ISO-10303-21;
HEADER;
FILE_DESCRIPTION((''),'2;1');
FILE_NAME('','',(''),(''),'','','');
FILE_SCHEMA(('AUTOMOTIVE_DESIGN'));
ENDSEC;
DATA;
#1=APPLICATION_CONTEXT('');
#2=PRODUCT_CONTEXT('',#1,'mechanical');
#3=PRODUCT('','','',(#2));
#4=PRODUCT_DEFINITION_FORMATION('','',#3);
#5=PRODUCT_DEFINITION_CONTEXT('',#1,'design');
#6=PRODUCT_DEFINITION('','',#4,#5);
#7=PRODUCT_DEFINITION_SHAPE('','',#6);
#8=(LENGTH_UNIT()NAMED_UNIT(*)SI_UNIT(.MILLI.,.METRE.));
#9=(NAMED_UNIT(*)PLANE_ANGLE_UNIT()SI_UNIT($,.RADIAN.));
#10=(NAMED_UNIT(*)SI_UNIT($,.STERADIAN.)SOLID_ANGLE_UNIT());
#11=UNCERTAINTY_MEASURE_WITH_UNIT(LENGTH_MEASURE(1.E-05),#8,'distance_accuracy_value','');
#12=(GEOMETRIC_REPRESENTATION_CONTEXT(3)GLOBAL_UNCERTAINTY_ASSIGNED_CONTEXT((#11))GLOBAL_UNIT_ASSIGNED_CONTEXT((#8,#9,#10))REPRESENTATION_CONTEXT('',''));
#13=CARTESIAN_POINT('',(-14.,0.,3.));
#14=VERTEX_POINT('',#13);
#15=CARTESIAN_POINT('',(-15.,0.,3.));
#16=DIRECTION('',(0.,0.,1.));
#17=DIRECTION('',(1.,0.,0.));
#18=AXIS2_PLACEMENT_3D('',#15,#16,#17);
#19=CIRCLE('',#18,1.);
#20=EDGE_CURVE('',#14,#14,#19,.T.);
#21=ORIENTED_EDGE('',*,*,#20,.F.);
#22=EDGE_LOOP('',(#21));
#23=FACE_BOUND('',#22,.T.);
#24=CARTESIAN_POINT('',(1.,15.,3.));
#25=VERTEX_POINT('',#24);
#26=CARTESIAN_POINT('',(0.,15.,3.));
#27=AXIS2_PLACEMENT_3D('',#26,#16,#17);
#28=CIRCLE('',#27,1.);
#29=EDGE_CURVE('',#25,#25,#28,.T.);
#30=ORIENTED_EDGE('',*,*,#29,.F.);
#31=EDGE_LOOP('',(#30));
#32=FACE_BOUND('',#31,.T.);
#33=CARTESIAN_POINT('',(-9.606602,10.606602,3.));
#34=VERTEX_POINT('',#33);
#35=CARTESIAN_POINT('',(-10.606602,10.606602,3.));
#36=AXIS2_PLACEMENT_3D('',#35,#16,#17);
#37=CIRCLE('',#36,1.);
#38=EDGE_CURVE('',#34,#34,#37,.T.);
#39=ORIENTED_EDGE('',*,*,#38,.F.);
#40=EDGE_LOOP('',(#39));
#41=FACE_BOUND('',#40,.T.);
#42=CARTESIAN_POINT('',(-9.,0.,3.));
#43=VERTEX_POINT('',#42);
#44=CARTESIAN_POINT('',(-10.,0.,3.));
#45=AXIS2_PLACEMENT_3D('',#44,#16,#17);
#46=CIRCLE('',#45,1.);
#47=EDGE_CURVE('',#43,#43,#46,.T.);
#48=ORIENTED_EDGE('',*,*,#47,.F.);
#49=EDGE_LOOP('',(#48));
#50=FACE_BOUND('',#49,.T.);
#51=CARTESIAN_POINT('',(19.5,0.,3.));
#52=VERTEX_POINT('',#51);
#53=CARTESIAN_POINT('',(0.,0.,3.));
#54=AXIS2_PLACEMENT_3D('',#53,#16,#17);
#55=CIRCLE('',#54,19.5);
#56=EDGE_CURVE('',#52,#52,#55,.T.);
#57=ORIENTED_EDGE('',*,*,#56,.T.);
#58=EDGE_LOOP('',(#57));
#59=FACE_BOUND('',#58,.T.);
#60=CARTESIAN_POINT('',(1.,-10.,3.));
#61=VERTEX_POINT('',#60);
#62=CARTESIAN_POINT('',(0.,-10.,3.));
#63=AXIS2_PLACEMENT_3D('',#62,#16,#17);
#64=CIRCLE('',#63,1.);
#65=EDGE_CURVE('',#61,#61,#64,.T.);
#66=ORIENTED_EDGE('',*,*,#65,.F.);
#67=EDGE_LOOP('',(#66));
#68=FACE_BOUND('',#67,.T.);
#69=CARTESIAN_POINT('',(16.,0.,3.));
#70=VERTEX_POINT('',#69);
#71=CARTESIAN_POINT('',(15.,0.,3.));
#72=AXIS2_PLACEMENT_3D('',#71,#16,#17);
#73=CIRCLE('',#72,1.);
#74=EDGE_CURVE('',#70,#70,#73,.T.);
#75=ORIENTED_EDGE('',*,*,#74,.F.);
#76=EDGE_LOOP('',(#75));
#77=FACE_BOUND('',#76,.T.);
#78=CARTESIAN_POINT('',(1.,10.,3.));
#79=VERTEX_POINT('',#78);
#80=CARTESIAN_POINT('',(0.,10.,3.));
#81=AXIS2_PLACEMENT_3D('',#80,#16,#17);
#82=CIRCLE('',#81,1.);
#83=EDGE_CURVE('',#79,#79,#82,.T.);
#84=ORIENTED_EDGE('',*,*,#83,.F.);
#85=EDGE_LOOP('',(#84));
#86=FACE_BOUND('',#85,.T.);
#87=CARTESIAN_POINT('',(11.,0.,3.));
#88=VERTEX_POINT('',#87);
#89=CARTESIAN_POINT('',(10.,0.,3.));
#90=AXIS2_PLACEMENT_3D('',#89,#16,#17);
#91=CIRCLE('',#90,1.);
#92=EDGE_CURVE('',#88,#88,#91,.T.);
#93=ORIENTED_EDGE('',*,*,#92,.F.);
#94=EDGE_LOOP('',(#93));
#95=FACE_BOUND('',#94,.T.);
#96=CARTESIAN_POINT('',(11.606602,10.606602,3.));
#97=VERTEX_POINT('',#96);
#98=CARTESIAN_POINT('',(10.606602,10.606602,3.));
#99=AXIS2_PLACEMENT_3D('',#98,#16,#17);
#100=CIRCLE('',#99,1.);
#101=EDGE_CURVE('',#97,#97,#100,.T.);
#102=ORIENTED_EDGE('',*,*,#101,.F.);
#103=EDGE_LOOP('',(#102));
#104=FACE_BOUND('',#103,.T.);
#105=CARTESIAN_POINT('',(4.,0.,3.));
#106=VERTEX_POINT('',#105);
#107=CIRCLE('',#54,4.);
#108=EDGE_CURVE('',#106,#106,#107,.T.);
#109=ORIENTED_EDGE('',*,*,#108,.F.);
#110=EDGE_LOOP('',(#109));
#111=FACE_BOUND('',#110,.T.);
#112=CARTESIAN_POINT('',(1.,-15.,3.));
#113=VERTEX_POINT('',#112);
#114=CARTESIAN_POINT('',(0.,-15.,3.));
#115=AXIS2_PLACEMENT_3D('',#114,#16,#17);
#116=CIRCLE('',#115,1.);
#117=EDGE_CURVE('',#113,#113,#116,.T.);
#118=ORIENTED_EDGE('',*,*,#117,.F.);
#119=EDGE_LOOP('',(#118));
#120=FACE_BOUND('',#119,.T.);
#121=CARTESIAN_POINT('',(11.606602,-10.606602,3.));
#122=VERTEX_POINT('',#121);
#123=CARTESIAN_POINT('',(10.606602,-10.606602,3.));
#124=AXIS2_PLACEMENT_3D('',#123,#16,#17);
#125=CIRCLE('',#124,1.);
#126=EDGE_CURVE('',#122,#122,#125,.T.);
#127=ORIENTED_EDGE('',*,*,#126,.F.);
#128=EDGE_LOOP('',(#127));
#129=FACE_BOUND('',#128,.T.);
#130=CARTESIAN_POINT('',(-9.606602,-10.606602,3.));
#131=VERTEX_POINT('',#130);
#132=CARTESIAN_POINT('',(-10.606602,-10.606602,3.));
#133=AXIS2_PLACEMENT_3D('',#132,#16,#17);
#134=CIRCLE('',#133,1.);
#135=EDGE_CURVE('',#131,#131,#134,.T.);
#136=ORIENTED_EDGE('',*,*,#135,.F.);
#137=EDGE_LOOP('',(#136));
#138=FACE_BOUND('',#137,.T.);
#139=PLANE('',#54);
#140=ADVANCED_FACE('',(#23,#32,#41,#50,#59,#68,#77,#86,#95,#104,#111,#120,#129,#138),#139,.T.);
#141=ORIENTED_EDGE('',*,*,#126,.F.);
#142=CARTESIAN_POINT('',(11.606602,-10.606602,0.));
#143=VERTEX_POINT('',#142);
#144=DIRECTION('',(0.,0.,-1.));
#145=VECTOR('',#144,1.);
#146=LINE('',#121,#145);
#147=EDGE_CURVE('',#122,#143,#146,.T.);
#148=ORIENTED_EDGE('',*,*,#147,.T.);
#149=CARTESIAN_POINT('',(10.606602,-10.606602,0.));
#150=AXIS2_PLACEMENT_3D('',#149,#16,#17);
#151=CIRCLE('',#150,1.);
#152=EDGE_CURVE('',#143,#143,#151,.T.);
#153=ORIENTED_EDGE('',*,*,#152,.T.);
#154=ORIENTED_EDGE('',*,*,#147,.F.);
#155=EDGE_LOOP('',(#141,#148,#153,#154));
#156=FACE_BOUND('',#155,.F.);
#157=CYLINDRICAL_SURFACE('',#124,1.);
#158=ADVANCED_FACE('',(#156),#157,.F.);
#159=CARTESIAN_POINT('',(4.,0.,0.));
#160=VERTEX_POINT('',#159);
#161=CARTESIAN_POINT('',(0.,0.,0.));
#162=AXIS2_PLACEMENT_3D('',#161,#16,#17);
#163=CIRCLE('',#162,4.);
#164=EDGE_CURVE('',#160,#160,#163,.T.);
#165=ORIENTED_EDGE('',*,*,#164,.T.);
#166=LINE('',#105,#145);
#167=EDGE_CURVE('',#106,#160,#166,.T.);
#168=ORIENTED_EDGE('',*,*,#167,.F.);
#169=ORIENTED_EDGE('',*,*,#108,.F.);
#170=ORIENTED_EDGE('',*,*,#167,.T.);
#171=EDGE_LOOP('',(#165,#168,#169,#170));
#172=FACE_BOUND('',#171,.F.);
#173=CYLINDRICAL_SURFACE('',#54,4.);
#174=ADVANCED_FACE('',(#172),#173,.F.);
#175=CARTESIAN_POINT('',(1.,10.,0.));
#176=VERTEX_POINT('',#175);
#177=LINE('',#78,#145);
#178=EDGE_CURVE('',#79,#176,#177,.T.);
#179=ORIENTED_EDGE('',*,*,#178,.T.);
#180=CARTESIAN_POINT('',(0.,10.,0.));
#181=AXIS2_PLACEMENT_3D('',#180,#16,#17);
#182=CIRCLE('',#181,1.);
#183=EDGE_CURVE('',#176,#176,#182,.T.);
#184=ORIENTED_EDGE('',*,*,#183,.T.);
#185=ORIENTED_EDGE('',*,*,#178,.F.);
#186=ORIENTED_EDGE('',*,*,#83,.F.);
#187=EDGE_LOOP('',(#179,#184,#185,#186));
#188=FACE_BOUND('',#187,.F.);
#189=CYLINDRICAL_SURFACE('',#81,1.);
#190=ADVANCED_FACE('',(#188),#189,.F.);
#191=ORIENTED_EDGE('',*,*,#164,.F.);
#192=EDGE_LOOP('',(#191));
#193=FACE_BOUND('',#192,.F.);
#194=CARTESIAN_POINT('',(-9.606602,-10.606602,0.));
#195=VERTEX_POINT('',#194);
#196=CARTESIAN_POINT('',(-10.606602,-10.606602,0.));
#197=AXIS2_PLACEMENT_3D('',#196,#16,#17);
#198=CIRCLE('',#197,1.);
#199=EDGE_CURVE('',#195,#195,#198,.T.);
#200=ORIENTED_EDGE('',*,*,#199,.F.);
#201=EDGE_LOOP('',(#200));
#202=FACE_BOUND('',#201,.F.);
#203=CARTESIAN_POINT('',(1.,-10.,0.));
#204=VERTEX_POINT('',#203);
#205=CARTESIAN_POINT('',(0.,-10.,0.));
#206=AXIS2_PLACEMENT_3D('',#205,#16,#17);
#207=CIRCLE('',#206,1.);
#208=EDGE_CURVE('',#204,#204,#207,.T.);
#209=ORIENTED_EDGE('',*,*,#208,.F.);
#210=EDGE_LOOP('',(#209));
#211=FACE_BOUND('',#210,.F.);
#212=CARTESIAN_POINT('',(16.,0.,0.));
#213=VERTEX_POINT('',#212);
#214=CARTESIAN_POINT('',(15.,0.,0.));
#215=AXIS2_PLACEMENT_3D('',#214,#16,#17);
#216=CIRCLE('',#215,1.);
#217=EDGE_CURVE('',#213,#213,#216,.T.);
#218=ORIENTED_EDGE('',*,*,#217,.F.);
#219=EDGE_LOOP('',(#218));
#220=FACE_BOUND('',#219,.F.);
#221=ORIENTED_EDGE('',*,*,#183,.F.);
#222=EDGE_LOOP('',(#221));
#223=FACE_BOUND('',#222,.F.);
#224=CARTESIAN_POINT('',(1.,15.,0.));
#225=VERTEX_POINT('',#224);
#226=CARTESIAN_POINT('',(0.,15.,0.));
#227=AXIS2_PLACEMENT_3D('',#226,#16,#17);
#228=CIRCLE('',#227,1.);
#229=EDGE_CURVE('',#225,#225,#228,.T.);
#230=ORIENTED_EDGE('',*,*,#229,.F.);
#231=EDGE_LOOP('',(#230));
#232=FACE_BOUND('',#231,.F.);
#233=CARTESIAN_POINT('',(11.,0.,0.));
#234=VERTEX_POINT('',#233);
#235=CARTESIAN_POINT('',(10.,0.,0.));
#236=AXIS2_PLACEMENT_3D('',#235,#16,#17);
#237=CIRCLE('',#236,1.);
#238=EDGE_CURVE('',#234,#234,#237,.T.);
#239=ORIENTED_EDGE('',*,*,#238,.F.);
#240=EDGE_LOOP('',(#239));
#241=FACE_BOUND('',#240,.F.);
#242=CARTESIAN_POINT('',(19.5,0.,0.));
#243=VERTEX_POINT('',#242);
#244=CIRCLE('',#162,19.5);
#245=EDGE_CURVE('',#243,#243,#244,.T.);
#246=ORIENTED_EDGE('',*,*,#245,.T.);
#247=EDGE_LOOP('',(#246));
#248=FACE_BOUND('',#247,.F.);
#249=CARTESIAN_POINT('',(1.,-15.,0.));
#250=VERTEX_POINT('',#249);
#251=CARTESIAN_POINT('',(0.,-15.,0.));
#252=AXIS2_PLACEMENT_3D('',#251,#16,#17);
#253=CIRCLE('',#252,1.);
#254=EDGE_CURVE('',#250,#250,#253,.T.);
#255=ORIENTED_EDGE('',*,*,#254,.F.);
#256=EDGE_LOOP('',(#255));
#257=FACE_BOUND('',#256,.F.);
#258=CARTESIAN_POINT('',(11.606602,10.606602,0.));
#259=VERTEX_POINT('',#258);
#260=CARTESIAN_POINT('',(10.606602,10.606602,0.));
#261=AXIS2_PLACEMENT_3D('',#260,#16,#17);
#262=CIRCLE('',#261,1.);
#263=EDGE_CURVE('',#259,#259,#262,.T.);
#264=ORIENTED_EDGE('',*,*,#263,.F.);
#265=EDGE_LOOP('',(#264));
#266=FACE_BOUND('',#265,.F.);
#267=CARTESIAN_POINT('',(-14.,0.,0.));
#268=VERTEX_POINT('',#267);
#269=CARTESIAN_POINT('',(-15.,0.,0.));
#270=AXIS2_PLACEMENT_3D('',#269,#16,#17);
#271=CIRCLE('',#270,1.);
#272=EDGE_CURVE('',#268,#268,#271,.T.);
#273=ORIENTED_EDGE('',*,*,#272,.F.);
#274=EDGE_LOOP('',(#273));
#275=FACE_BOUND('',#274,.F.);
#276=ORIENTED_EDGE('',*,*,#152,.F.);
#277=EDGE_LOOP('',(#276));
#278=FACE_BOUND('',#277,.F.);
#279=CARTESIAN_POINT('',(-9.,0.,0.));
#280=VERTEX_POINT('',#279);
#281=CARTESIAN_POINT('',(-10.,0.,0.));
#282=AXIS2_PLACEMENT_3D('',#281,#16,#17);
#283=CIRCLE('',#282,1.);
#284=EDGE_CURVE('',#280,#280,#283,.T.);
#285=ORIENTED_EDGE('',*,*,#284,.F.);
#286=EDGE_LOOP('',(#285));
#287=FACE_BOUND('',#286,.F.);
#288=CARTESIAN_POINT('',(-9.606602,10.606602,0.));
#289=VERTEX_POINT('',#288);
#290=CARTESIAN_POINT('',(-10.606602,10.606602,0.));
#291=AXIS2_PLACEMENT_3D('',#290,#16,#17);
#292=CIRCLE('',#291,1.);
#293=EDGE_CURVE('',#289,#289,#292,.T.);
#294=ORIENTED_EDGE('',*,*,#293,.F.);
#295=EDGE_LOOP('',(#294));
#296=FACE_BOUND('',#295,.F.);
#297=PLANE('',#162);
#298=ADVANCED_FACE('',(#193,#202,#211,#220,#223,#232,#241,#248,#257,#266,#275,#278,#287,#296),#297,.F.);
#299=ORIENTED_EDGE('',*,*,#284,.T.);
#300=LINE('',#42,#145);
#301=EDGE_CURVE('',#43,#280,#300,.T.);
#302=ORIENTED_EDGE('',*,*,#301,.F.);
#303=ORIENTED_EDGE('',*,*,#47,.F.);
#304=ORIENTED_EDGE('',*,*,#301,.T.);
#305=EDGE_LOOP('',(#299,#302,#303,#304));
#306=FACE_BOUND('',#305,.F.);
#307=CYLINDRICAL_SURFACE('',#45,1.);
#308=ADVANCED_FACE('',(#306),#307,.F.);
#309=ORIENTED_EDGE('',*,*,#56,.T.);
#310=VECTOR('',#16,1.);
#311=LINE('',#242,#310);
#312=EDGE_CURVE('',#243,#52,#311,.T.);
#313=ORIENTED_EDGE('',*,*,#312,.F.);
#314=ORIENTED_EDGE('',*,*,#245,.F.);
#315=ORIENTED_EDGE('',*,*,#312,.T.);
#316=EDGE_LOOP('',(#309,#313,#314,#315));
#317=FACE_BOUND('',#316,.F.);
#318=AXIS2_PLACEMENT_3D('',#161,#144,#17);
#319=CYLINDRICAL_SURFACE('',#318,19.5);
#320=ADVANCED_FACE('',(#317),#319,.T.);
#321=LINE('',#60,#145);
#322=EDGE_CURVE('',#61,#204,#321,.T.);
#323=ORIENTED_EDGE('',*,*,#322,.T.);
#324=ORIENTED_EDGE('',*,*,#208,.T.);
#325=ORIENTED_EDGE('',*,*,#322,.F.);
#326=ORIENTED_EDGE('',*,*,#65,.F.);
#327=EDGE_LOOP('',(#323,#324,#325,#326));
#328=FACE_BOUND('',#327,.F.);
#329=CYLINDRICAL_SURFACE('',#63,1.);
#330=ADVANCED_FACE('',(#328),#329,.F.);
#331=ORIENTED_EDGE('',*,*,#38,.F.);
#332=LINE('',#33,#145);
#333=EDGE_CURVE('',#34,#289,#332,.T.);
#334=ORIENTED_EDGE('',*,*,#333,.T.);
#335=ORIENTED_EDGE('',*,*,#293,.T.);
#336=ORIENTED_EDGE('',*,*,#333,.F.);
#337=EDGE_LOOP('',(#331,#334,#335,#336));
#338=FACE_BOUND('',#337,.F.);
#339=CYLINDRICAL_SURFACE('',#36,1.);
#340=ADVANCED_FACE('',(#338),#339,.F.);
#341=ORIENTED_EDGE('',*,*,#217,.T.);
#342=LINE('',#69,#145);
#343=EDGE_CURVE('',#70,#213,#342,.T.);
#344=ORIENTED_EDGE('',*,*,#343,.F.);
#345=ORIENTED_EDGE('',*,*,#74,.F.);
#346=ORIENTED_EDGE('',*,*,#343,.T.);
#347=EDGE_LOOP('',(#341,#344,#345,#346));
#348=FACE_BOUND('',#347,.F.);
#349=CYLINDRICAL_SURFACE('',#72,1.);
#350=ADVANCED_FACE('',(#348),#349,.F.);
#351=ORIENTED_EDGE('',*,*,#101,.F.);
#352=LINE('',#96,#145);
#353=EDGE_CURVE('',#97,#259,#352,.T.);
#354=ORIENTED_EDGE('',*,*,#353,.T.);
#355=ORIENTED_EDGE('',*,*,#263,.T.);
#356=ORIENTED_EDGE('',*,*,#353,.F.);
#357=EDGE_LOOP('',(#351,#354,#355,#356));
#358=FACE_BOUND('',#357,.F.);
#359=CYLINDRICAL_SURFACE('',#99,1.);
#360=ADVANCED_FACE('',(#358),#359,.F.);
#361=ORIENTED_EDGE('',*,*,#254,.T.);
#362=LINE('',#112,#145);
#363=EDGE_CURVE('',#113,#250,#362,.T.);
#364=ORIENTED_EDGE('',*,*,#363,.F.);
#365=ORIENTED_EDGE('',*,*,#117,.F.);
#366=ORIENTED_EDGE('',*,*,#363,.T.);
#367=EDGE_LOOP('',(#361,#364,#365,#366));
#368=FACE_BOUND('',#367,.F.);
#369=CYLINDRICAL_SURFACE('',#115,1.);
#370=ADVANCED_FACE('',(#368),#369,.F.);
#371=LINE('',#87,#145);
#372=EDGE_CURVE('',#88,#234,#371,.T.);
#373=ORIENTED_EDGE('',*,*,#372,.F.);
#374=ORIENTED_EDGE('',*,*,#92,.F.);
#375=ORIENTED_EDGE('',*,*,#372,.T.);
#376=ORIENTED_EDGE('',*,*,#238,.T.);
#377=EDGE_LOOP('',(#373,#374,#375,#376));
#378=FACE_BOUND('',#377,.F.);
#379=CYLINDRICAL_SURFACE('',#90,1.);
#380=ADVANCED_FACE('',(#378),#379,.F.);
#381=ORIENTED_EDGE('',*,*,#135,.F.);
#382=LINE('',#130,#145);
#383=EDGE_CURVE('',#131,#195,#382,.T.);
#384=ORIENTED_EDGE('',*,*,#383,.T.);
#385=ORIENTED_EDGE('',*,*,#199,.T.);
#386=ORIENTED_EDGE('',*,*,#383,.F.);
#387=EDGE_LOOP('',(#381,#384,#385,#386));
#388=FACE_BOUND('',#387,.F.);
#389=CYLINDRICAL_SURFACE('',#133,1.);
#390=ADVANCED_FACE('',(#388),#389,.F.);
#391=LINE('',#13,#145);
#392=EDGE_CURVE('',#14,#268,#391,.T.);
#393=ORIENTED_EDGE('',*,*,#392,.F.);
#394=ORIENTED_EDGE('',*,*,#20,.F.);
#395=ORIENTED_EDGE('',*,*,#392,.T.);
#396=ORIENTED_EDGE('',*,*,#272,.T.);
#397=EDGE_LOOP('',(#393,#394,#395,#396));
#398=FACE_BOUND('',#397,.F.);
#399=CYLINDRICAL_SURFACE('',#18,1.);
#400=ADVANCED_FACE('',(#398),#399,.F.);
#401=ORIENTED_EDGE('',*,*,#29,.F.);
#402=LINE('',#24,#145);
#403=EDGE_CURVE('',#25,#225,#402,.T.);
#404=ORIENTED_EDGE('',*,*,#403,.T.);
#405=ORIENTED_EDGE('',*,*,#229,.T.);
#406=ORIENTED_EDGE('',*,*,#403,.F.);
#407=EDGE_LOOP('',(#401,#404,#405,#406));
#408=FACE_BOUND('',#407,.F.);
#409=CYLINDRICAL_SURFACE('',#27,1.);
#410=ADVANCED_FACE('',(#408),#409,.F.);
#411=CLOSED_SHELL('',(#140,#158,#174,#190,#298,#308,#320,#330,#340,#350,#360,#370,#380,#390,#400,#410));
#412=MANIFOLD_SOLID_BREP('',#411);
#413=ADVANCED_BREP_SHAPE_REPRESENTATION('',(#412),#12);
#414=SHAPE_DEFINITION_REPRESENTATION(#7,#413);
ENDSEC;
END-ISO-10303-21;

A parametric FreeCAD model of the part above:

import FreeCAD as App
import Part
import Sketcher
from FreeCAD import Vector

doc = App.newDocument("Part")
params = doc.addObject("Spreadsheet::Sheet", "Params")
for row, (alias, value) in enumerate([
    ("sketch1_diameter", "39 mm"),
    ("pad1_length", "3 mm"),
    ("sketch2_diameter", "2 mm"),
    ("pocket1_length", "3 mm"),
    ("sketch3_diameter", "8 mm"),
    ("pocket2_length", "3 mm"),
], start=1):
    params.set(f"A{row}", alias)
    params.set(f"B{row}", "=" + value)
    params.setAlias(f"B{row}", alias)

body = doc.addObject("PartDesign::Body", "Body")

# Sketch on XY plane
sketch1 = body.newObject("Sketcher::SketchObject", "Sketch")
sketch1.AttachmentSupport = (doc.getObject("XY_Plane"), [""])
sketch1.MapMode = "FlatFace"
sketch1.addGeometry(Part.Circle(Vector(0, 0, 0), Vector(0, 0, 1), 19.5), False)
sketch1.addConstraint([
    Sketcher.Constraint("Coincident", 0, 3, -1, 1),
    Sketcher.Constraint("Diameter", 0, 39.0),
])
sketch1.setExpression("Constraints[1]", "Params.sketch1_diameter")
pad1 = body.newObject("PartDesign::Pad", "Pad")
pad1.Profile = sketch1
pad1.setExpression("Length", "Params.pad1_length")

# Sketch on XY plane
sketch2 = body.newObject("Sketcher::SketchObject", "Sketch001")
sketch2.AttachmentSupport = (doc.getObject("XY_Plane"), [""])
sketch2.MapMode = "FlatFace"
sketch2.AttachmentOffset = App.Placement(Vector(0, 0, 3), App.Rotation())
sketch2.addGeometry([
    Part.Circle(Vector(0, 10, 0), Vector(0, 0, 1), 1),  # 0
    Part.Circle(Vector(10, 0, 0), Vector(0, 0, 1), 1),  # 1
    Part.Circle(Vector(0, -10, 0), Vector(0, 0, 1), 1),  # 2
    Part.Circle(Vector(-10, 0, 0), Vector(0, 0, 1), 1),  # 3
    Part.Circle(Vector(0, 15, 0), Vector(0, 0, 1), 1),  # 4
    Part.Circle(Vector(10.606602, 10.606602, 0), Vector(0, 0, 1), 1),  # 5
    Part.Circle(Vector(15, 0, 0), Vector(0, 0, 1), 1),  # 6
    Part.Circle(Vector(10.606602, -10.606602, 0), Vector(0, 0, 1), 1),  # 7
    Part.Circle(Vector(0, -15, 0), Vector(0, 0, 1), 1),  # 8
    Part.Circle(Vector(-10.606602, -10.606602, 0), Vector(0, 0, 1), 1),  # 9
    Part.Circle(Vector(-15, 0, 0), Vector(0, 0, 1), 1),  # 10
    Part.Circle(Vector(-10.606602, 10.606602, 0), Vector(0, 0, 1), 1),  # 11
], False)
sketch2.addConstraint([
    Sketcher.Constraint("Equal", 0, 1),
    Sketcher.Constraint("Equal", 1, 2),
    Sketcher.Constraint("Equal", 2, 3),
    Sketcher.Constraint("Equal", 3, 4),
    Sketcher.Constraint("Equal", 4, 5),
    Sketcher.Constraint("Equal", 5, 6),
    Sketcher.Constraint("Equal", 6, 7),
    Sketcher.Constraint("Equal", 7, 8),
    Sketcher.Constraint("Equal", 8, 9),
    Sketcher.Constraint("Equal", 9, 10),
    Sketcher.Constraint("Equal", 10, 11),
    Sketcher.Constraint("Symmetric", 0, 3, 2, 3, -1, 1),
    Sketcher.Constraint("Symmetric", 1, 3, 3, 3, -1, 1),
    Sketcher.Constraint("Symmetric", 4, 3, 8, 3, -1, 1),
    Sketcher.Constraint("Symmetric", 5, 3, 9, 3, -1, 1),
    Sketcher.Constraint("Symmetric", 6, 3, 10, 3, -1, 1),
    Sketcher.Constraint("Symmetric", 7, 3, 11, 3, -1, 1),
    Sketcher.Constraint("Symmetric", 7, 3, 9, 3, -2),
    Sketcher.Constraint("PointOnObject", 0, 3, -2),
    Sketcher.Constraint("PointOnObject", 1, 3, -1),
    Sketcher.Constraint("PointOnObject", 4, 3, -2),
    Sketcher.Constraint("PointOnObject", 6, 3, -1),
    Sketcher.Constraint("Diameter", 0, 2.0),
    Sketcher.Constraint("DistanceY", -1, 1, 0, 3, 10.0),
    Sketcher.Constraint("DistanceX", -1, 1, 1, 3, 10.0),
    Sketcher.Constraint("DistanceY", -1, 1, 4, 3, 15.0),
    Sketcher.Constraint("DistanceX", -1, 1, 6, 3, 15.0),
    Sketcher.Constraint("DistanceX", -1, 1, 5, 3, 10.606602),
    Sketcher.Constraint("DistanceY", -1, 1, 5, 3, 10.606602),
])
sketch2.setExpression("Constraints[22]", "Params.sketch2_diameter")
pocket1 = body.newObject("PartDesign::Pocket", "Pocket")
pocket1.Profile = sketch2
pocket1.setExpression("Length", "Params.pocket1_length")

# Sketch on XY plane
sketch3 = body.newObject("Sketcher::SketchObject", "Sketch002")
sketch3.AttachmentSupport = (doc.getObject("XY_Plane"), [""])
sketch3.MapMode = "FlatFace"
sketch3.AttachmentOffset = App.Placement(Vector(0, 0, 3), App.Rotation())
sketch3.addGeometry(Part.Circle(Vector(0, 0, 0), Vector(0, 0, 1), 4), False)
sketch3.addConstraint([
    Sketcher.Constraint("Coincident", 0, 3, -1, 1),
    Sketcher.Constraint("Diameter", 0, 8.0),
])
sketch3.setExpression("Constraints[1]", "Params.sketch3_diameter")
pocket2 = body.newObject("PartDesign::Pocket", "Pocket001")
pocket2.Profile = sketch3
pocket2.setExpression("Length", "Params.pocket2_length")

doc.recompute()
